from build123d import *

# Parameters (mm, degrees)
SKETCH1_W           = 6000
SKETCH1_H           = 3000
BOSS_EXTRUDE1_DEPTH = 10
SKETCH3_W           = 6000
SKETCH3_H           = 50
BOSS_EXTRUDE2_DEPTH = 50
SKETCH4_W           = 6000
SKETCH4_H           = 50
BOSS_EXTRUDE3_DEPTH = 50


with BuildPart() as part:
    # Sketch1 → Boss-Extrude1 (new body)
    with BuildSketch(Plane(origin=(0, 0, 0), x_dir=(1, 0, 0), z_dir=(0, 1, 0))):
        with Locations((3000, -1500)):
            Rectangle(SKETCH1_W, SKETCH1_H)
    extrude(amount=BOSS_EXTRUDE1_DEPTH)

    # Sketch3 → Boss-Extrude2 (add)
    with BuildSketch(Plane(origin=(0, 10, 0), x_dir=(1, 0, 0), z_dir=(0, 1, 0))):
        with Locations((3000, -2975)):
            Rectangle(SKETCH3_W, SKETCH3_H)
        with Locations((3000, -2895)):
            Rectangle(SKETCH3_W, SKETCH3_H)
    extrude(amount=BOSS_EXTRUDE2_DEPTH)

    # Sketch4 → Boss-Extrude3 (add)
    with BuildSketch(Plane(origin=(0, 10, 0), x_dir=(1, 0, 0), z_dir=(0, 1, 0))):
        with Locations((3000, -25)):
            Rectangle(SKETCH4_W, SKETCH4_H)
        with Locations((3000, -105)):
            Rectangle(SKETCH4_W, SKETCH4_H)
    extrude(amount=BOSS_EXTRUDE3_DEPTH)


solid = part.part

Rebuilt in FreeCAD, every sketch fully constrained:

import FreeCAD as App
import Part
import Sketcher

V = App.Vector
Q = App.Units.Quantity


def add_polygon(sketch, points):
    """Adds a closed chain of lines whose ends are joined by coincident constraints."""
    first, n = sketch.GeometryCount, len(points)
    for a, b in zip(points, points[1:] + points[:1]):
        sketch.addGeometry(Part.LineSegment(App.Vector(*a, 0), App.Vector(*b, 0)), False)
    for i in range(n):
        sketch.addConstraint(Sketcher.Constraint("Coincident", first + i, 2, first + (i + 1) % n, 1))

doc = App.newDocument("Part")
body = doc.addObject("PartDesign::Body", "Body")

# Sketch on XZ plane
sketch1 = body.newObject("Sketcher::SketchObject", "Sketch")
sketch1.AttachmentSupport = (doc.getObject("XZ_Plane"), [""])
sketch1.MapMode = "FlatFace"
add_polygon(sketch1, [(0, 0), (0, 3000), (6000, 3000), (6000, 0)])  # lines 0-3
sketch1.addConstraint([
    Sketcher.Constraint("Vertical", 0),
    Sketcher.Constraint("Horizontal", 1),
    Sketcher.Constraint("Vertical", 2),
    Sketcher.Constraint("Horizontal", 3),
    Sketcher.Constraint("Coincident", 3, 2, -1, 1),
    Sketcher.Constraint("DistanceX", 1, 1, 1, 2, Q("6000 mm")),
    Sketcher.Constraint("DistanceY", 0, 1, 0, 2, Q("3000 mm")),
])
pad1 = body.newObject("PartDesign::Pad", "Pad")
pad1.Profile = sketch1
pad1.Length = 10
pad1.Reversed = True

# Sketch on XZ plane
sketch2 = body.newObject("Sketcher::SketchObject", "Sketch001")
sketch2.AttachmentSupport = (doc.getObject("XZ_Plane"), [""])
sketch2.MapMode = "FlatFace"
sketch2.AttachmentOffset = App.Placement(V(0, 0, -10), App.Rotation())
add_polygon(sketch2, [(0, 2950), (0, 3000), (6000, 3000), (6000, 2950)])  # lines 0-3
add_polygon(sketch2, [(0, 2870), (0, 2920), (6000, 2920), (6000, 2870)])  # lines 4-7
sketch2.addConstraint([
    Sketcher.Constraint("Vertical", 0),
    Sketcher.Constraint("Horizontal", 1),
    Sketcher.Constraint("Vertical", 2),
    Sketcher.Constraint("Horizontal", 3),
    Sketcher.Constraint("Vertical", 4),
    Sketcher.Constraint("Horizontal", 5),
    Sketcher.Constraint("Vertical", 6),
    Sketcher.Constraint("Horizontal", 7),
    Sketcher.Constraint("PointOnObject", 0, 2, -2),
    Sketcher.Constraint("PointOnObject", 4, 2, -2),
    Sketcher.Constraint("Vertical", 2, 2, 5, 2),
    Sketcher.Constraint("Equal", 2, 4),
    Sketcher.Constraint("DistanceX", 1, 1, 1, 2, Q("6000 mm")),
    Sketcher.Constraint("DistanceY", 0, 1, 0, 2, Q("50 mm")),
    Sketcher.Constraint("DistanceY", -1, 1, 0, 2, Q("3000 mm")),
    Sketcher.Constraint("DistanceY", -1, 1, 4, 2, Q("2920 mm")),
])
pad2 = body.newObject("PartDesign::Pad", "Pad001")
pad2.Profile = sketch2
pad2.Length = 50
pad2.Reversed = True

# Sketch on XZ plane
sketch3 = body.newObject("Sketcher::SketchObject", "Sketch002")
sketch3.AttachmentSupport = (doc.getObject("XZ_Plane"), [""])
sketch3.MapMode = "FlatFace"
sketch3.AttachmentOffset = App.Placement(V(0, 0, -10), App.Rotation())
add_polygon(sketch3, [(0, 0), (0, 50), (6000, 50), (6000, 0)])  # lines 0-3
add_polygon(sketch3, [(0, 80), (0, 130), (6000, 130), (6000, 80)])  # lines 4-7
sketch3.addConstraint([
    Sketcher.Constraint("Vertical", 0),
    Sketcher.Constraint("Horizontal", 1),
    Sketcher.Constraint("Vertical", 2),
    Sketcher.Constraint("Horizontal", 3),
    Sketcher.Constraint("Vertical", 4),
    Sketcher.Constraint("Horizontal", 5),
    Sketcher.Constraint("Vertical", 6),
    Sketcher.Constraint("Horizontal", 7),
    Sketcher.Constraint("Coincident", 3, 2, -1, 1),
    Sketcher.Constraint("PointOnObject", 4, 2, -2),
    Sketcher.Constraint("Vertical", 2, 2, 5, 2),
    Sketcher.Constraint("Equal", 2, 4),
    Sketcher.Constraint("DistanceX", 1, 1, 1, 2, Q("6000 mm")),
    Sketcher.Constraint("DistanceY", 0, 1, 0, 2, Q("50 mm")),
    Sketcher.Constraint("DistanceY", -1, 1, 4, 2, Q("130 mm")),
])
pad3 = body.newObject("PartDesign::Pad", "Pad002")
pad3.Profile = sketch3
pad3.Length = 50
pad3.Reversed = True

doc.recompute()
